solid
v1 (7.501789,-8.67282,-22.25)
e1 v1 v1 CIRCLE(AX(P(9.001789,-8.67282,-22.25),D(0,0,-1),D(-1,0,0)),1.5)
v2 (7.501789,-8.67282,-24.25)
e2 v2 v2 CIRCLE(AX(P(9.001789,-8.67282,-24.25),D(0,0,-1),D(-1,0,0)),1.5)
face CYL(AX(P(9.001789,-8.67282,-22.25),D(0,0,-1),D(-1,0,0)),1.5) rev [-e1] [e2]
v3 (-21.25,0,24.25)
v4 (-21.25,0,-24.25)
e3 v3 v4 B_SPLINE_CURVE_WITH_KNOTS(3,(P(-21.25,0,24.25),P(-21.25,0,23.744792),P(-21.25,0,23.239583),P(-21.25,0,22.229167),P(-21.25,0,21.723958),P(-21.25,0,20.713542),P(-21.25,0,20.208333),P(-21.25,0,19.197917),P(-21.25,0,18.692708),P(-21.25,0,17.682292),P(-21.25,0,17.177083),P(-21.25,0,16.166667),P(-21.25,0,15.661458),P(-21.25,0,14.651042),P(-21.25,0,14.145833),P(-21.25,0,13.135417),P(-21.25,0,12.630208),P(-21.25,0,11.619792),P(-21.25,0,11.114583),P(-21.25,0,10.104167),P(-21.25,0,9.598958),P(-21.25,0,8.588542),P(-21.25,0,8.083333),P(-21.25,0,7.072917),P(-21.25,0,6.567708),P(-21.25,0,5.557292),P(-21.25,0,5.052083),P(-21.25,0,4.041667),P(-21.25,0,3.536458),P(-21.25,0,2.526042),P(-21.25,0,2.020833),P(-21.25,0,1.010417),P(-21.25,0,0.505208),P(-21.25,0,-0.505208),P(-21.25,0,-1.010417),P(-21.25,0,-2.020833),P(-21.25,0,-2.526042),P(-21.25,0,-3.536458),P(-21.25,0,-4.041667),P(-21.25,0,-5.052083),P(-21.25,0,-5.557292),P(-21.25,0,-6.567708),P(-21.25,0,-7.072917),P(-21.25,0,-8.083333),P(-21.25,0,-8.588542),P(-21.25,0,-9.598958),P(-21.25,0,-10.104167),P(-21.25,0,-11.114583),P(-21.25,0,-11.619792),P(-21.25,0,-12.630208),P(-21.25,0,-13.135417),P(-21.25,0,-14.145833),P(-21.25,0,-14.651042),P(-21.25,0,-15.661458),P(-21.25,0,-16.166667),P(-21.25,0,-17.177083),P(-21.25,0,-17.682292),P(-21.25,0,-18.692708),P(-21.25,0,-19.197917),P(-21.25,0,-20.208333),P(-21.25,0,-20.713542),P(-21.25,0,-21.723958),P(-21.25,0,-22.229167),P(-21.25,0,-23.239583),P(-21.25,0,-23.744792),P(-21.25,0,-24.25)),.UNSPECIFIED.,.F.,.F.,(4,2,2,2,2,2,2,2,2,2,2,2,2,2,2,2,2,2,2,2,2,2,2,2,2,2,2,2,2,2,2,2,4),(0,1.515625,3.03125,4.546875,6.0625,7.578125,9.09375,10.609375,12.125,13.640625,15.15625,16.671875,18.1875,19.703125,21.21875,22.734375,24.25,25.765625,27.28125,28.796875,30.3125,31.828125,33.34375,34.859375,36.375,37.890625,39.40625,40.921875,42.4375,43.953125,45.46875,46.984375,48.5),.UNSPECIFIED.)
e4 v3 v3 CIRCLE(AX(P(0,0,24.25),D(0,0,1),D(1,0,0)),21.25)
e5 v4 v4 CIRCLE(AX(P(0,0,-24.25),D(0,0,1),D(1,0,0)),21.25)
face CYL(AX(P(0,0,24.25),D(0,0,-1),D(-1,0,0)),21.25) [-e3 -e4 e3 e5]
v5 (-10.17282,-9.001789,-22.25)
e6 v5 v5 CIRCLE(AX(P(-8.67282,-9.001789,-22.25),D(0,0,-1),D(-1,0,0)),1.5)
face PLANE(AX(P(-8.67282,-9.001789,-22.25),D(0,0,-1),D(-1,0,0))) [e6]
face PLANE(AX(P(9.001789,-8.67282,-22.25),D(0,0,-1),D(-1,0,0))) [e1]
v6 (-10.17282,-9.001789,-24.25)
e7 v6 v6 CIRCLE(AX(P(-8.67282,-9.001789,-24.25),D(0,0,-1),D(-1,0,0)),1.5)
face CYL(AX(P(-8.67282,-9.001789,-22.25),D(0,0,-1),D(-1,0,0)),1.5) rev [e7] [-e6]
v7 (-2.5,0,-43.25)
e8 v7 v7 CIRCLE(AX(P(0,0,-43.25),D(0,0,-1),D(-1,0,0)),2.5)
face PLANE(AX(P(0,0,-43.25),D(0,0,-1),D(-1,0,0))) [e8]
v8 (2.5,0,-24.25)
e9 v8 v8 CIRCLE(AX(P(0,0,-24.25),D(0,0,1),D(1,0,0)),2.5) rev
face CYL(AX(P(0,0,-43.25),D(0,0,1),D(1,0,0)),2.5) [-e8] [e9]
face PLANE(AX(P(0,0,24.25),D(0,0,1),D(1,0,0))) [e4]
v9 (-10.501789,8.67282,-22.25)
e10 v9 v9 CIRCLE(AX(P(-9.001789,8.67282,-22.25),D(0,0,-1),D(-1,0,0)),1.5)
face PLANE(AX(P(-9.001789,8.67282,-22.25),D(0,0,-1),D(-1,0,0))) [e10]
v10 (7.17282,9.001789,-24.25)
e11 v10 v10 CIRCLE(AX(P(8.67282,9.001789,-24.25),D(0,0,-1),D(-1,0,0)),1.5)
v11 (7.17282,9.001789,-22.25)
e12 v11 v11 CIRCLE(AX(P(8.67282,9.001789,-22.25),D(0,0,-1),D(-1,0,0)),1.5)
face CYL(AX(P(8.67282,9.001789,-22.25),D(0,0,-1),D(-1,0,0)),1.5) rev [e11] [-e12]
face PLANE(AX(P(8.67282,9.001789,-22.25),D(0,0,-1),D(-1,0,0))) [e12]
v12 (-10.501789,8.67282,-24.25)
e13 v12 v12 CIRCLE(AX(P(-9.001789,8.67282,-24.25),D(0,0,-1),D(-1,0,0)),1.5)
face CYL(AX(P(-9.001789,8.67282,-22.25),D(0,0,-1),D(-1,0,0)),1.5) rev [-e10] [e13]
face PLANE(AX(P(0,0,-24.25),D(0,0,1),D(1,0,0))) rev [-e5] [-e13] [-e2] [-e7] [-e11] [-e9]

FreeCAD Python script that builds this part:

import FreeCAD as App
import Part
import Sketcher

V = App.Vector
Q = App.Units.Quantity

doc = App.newDocument("Part")
params = doc.addObject("Spreadsheet::Sheet", "Params")
for row, (alias, value) in enumerate([
    ("sketch1_diameter", "42.5 mm"),
    ("pad1_length", "48.5 mm"),
    ("sketch2_diameter", "5 mm"),
    ("pad2_length", "19 mm"),
    ("sketch3_diameter", "3 mm"),
    ("pocket1_length", "2 mm"),
], start=1):
    params.set(f"A{row}", alias)
    params.set(f"B{row}", "=" + value)
    params.setAlias(f"B{row}", alias)

body = doc.addObject("PartDesign::Body", "Body")

# Sketch on XY plane
sketch1 = doc.addObject("Sketcher::SketchObject", "Sketch")
body.addObject(sketch1)
sketch1.AttachmentSupport = (doc.XY_Plane, [""])
sketch1.MapMode = "FlatFace"
sketch1.addGeometry(Part.Circle(V(0, 0, 0), V(0, 0, 1), 21.25), False)
sketch1.addConstraint([
    Sketcher.Constraint("Coincident", 0, 3, -1, 1),
    Sketcher.Constraint("Diameter", 0, Q("42.5 mm")),
])
sketch1.setExpression("Constraints[1]", "Params.sketch1_diameter")
pad1 = doc.addObject("PartDesign::Pad", "Pad")
body.addObject(pad1)
pad1.Profile = sketch1
pad1.setExpression("Length", "Params.pad1_length")
pad1.Midplane = True

# Sketch on XY plane
sketch2 = doc.addObject("Sketcher::SketchObject", "Sketch001")
body.addObject(sketch2)
sketch2.AttachmentSupport = (doc.XY_Plane, [""])
sketch2.MapMode = "FlatFace"
sketch2.AttachmentOffset = App.Placement(V(0, 0, -24.25), App.Rotation())
sketch2.addGeometry(Part.Circle(V(0, 0, 0), V(0, 0, 1), 2.5), False)
sketch2.addConstraint([
    Sketcher.Constraint("Coincident", 0, 3, -1, 1),
    Sketcher.Constraint("Diameter", 0, Q("5 mm")),
])
sketch2.setExpression("Constraints[1]", "Params.sketch2_diameter")
pad2 = doc.addObject("PartDesign::Pad", "Pad001")
body.addObject(pad2)
pad2.Profile = sketch2
pad2.setExpression("Length", "Params.pad2_length")
pad2.Reversed = True

# Sketch on XY plane
sketch3 = doc.addObject("Sketcher::SketchObject", "Sketch002")
body.addObject(sketch3)
sketch3.AttachmentSupport = (doc.XY_Plane, [""])
sketch3.MapMode = "FlatFace"
sketch3.AttachmentOffset = App.Placement(V(0, 0, -24.25), App.Rotation())
sketch3.addGeometry([
    Part.Circle(V(8.67282, 9.001789, 0), V(0, 0, 1), 1.5),
    Part.Circle(V(-9.001789, 8.67282, 0), V(0, 0, 1), 1.5),
    Part.Circle(V(-8.67282, -9.001789, 0), V(0, 0, 1), 1.5),
    Part.Circle(V(9.001789, -8.67282, 0), V(0, 0, 1), 1.5),
], False)
sketch3.addConstraint([
    Sketcher.Constraint("Equal", 0, 1),
    Sketcher.Constraint("Equal", 1, 2),
    Sketcher.Constraint("Equal", 2, 3),
    Sketcher.Constraint("Symmetric", 0, 3, 2, 3, -1, 1),
    Sketcher.Constraint("Symmetric", 1, 3, 3, 3, -1, 1),
    Sketcher.Constraint("Diameter", 0, Q("3 mm")),
    Sketcher.Constraint("DistanceX", -1, 1, 0, 3, Q("8.67282 mm")),
    Sketcher.Constraint("DistanceY", -1, 1, 0, 3, Q("9.001789 mm")),
    Sketcher.Constraint("DistanceX", 1, 3, -1, 1, Q("9.001789 mm")),
    Sketcher.Constraint("DistanceY", -1, 1, 1, 3, Q("8.67282 mm")),
])
sketch3.setExpression("Constraints[5]", "Params.sketch3_diameter")
pocket1 = doc.addObject("PartDesign::Pocket", "Pocket")
body.addObject(pocket1)
pocket1.Profile = sketch3
pocket1.setExpression("Length", "Params.pocket1_length")
pocket1.Reversed = True

doc.recompute()
